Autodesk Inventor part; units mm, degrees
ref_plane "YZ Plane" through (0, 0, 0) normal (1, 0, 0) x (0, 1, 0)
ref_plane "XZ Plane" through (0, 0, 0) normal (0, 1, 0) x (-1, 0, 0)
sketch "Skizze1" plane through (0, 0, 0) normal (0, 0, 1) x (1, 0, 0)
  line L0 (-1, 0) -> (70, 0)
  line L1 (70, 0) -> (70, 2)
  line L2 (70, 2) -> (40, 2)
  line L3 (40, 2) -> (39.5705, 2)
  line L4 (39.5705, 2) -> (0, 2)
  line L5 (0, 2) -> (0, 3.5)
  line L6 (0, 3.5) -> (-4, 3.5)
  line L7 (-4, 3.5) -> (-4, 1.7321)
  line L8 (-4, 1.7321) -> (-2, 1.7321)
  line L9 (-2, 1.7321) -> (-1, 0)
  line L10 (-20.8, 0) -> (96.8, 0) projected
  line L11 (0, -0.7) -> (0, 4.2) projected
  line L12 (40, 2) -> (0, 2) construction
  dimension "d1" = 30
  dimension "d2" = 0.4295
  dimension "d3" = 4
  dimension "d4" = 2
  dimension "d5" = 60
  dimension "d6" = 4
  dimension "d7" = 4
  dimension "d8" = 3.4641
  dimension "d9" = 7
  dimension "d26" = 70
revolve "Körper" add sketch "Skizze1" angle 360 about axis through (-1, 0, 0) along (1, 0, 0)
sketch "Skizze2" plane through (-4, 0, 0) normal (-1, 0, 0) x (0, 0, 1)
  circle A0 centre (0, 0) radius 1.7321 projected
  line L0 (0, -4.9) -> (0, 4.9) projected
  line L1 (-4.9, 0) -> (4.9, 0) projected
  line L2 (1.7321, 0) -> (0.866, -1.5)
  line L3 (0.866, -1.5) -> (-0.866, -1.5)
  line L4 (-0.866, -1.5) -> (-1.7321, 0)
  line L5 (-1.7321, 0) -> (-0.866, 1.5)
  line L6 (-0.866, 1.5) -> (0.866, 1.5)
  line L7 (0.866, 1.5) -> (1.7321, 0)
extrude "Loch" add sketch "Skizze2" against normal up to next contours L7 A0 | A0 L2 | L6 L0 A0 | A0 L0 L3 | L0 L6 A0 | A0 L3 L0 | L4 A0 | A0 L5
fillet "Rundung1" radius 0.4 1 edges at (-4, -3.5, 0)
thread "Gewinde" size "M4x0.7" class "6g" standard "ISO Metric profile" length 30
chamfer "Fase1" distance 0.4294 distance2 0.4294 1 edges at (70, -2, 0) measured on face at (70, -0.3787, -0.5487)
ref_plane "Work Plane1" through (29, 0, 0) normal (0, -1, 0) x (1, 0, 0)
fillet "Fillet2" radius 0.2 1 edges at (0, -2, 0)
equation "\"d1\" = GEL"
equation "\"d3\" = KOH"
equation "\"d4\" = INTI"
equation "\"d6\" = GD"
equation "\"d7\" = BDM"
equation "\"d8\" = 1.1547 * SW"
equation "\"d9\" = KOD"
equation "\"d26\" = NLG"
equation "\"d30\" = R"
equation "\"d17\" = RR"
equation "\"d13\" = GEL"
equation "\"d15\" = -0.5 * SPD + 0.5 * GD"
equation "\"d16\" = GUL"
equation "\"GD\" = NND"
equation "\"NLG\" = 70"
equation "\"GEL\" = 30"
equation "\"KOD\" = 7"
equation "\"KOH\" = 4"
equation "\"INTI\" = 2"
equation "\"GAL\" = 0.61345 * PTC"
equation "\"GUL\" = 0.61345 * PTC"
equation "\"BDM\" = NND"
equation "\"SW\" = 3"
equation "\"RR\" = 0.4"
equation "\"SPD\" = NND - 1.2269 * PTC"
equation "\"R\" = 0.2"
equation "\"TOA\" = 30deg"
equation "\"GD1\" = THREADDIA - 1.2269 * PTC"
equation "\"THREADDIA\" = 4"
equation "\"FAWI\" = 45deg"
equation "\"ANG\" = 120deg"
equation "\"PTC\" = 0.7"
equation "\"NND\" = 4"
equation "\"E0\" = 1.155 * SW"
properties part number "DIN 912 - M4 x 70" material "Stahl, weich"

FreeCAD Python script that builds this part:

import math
import FreeCAD as App
import Part
import Sketcher

V = App.Vector
Q = App.Units.Quantity


def edges_at(feature, points):
    """Names of the edges that pass closest to the given points."""
    edges = feature.Shape.Edges
    near = lambda p: min(range(len(edges)), key=lambda i: edges[i].distToShape(Part.Vertex(*p))[0])
    return sorted({f"Edge{near(p) + 1}" for p in points})

doc = App.newDocument("Part")
body = doc.addObject("PartDesign::Body", "Body")

# Sketch on XY plane
sketch1 = body.newObject("Sketcher::SketchObject", "Sketch")
sketch1.AttachmentSupport = (doc.getObject("XY_Plane"), [""])
sketch1.MapMode = "FlatFace"
sketch1.addGeometry(Part.LineSegment(V(-2, 1.7, 0), V(-1, 0, 0)), False)
sketch1.addGeometry(Part.LineSegment(V(-1, 0, 0), V(70, 0, 0)), False)
sketch1.addGeometry(Part.LineSegment(V(70, 0, 0), V(70, 2, 0)), False)
sketch1.addGeometry(Part.LineSegment(V(70, 2, 0), V(0, 2, 0)), False)
sketch1.addGeometry(Part.LineSegment(V(0, 2, 0), V(0, 3.5, 0)), False)
sketch1.addGeometry(Part.LineSegment(V(0, 3.5, 0), V(-4, 3.5, 0)), False)
sketch1.addGeometry(Part.LineSegment(V(-4, 3.5, 0), V(-4, 1.7, 0)), False)
sketch1.addGeometry(Part.LineSegment(V(-4, 1.7, 0), V(-2, 1.7, 0)), False)
sketch1.addConstraint(Sketcher.Constraint("Coincident", 0, 2, 1, 1))
sketch1.addConstraint(Sketcher.Constraint("Coincident", 1, 2, 2, 1))
sketch1.addConstraint(Sketcher.Constraint("Coincident", 2, 2, 3, 1))
sketch1.addConstraint(Sketcher.Constraint("Coincident", 3, 2, 4, 1))
sketch1.addConstraint(Sketcher.Constraint("Coincident", 4, 2, 5, 1))
sketch1.addConstraint(Sketcher.Constraint("Coincident", 5, 2, 6, 1))
sketch1.addConstraint(Sketcher.Constraint("Coincident", 6, 2, 7, 1))
sketch1.addConstraint(Sketcher.Constraint("Coincident", 7, 2, 0, 1))
sketch1.addConstraint(Sketcher.Constraint("Horizontal", 1))
sketch1.addConstraint(Sketcher.Constraint("Vertical", 2))
sketch1.addConstraint(Sketcher.Constraint("Horizontal", 3))
sketch1.addConstraint(Sketcher.Constraint("Vertical", 4))
sketch1.addConstraint(Sketcher.Constraint("Horizontal", 5))
sketch1.addConstraint(Sketcher.Constraint("Vertical", 6))
sketch1.addConstraint(Sketcher.Constraint("Horizontal", 7))
sketch1.addConstraint(Sketcher.Constraint("PointOnObject", 0, 2, -1))
sketch1.addConstraint(Sketcher.Constraint("PointOnObject", 3, 2, -2))
sketch1.addConstraint(Sketcher.Constraint("Equal", 7, 2))
sketch1.addConstraint(Sketcher.Constraint("DistanceX", 3, 2, 3, 1, Q("70 mm")))
sketch1.addConstraint(Sketcher.Constraint("DistanceX", 5, 2, 5, 1, Q("4 mm")))
sketch1.addConstraint(Sketcher.Constraint("DistanceX", 7, 1, 7, 2, Q("2 mm")))
sketch1.addConstraint(Sketcher.Constraint("Distance", 0, Q("2 mm")))
sketch1.addConstraint(Sketcher.Constraint("DistanceX", 1, 1, 1, 2, Q("71 mm")))
sketch1.addConstraint(Sketcher.Constraint("DistanceY", 4, 1, 4, 2, Q("1.5 mm")))
revolution = body.newObject("PartDesign::Revolution", "Revolution")
revolution.Profile = sketch1
revolution.ReferenceAxis = (sketch1, ["H_Axis"])
revolution.Angle = 360

# Sketch on YZ plane
sketch2 = body.newObject("Sketcher::SketchObject", "Sketch001")
sketch2.AttachmentSupport = (doc.getObject("YZ_Plane"), [""])
sketch2.MapMode = "FlatFace"
sketch2.AttachmentOffset = App.Placement(V(0, 0, -4), App.Rotation())
sketch2.addGeometry(Part.LineSegment(V(1.5, 0.9, 0), V(0, 1.7, 0)), False)
sketch2.addGeometry(Part.ArcOfCircle(Part.Circle(V(0, 0, 0), V(0, 0, 1), 1.7), math.radians(30), math.radians(90)), False)
sketch2.addGeometry(Part.ArcOfCircle(Part.Circle(V(0, 0, 0), V(0, 0, 1), 1.7), math.radians(90), math.radians(150)), False)
sketch2.addGeometry(Part.LineSegment(V(0, 1.7, 0), V(-1.5, 0.9, 0)), False)
sketch2.addGeometry(Part.ArcOfCircle(Part.Circle(V(0, 0, 0), V(0, 0, 1), 1.7), math.radians(-30), math.radians(30)), False)
sketch2.addGeometry(Part.LineSegment(V(1.5, 0.9, 0), V(1.5, -0.9, 0)), False)
sketch2.addGeometry(Part.LineSegment(V(-1.5, 0.9, 0), V(-1.5, -0.9, 0)), False)
sketch2.addGeometry(Part.ArcOfCircle(Part.Circle(V(0, 0, 0), V(0, 0, 1), 1.7), math.radians(150), math.radians(210)), False)
sketch2.addGeometry(Part.LineSegment(V(-1.5, -0.9, 0), V(0, -1.7, 0)), False)
sketch2.addGeometry(Part.ArcOfCircle(Part.Circle(V(0, 0, 0), V(0, 0, 1), 1.7), math.radians(-150), math.radians(-90)), False)
sketch2.addGeometry(Part.ArcOfCircle(Part.Circle(V(0, 0, 0), V(0, 0, 1), 1.7), math.radians(-90), math.radians(-30)), False)
sketch2.addGeometry(Part.LineSegment(V(0, -1.7, 0), V(1.5, -0.9, 0)), False)
sketch2.addConstraint(Sketcher.Constraint("Coincident", 0, 1, 1, 1))
sketch2.addConstraint(Sketcher.Constraint("Coincident", 1, 2, 0, 2))
sketch2.addConstraint(Sketcher.Constraint("Coincident", 2, 1, 3, 1))
sketch2.addConstraint(Sketcher.Constraint("Coincident", 3, 2, 2, 2))
sketch2.addConstraint(Sketcher.Constraint("Coincident", 4, 1, 5, 2))
sketch2.addConstraint(Sketcher.Constraint("Coincident", 5, 1, 4, 2))
sketch2.addConstraint(Sketcher.Constraint("Coincident", 6, 1, 7, 1))
sketch2.addConstraint(Sketcher.Constraint("Coincident", 7, 2, 6, 2))
sketch2.addConstraint(Sketcher.Constraint("Coincident", 8, 1, 9, 1))
sketch2.addConstraint(Sketcher.Constraint("Coincident", 9, 2, 8, 2))
sketch2.addConstraint(Sketcher.Constraint("Coincident", 10, 1, 11, 1))
sketch2.addConstraint(Sketcher.Constraint("Coincident", 11, 2, 10, 2))
sketch2.addConstraint(Sketcher.Constraint("Vertical", 5))
sketch2.addConstraint(Sketcher.Constraint("Vertical", 6))
sketch2.addConstraint(Sketcher.Constraint("Coincident", 1, 3, -1, 1))
sketch2.addConstraint(Sketcher.Constraint("Coincident", 2, 3, -1, 1))
sketch2.addConstraint(Sketcher.Constraint("Coincident", 4, 3, -1, 1))
sketch2.addConstraint(Sketcher.Constraint("Coincident", 7, 3, -1, 1))
sketch2.addConstraint(Sketcher.Constraint("Coincident", 9, 3, -1, 1))
sketch2.addConstraint(Sketcher.Constraint("Coincident", 10, 3, -1, 1))
sketch2.addConstraint(Sketcher.Constraint("Coincident", 2, 1, 1, 2))
sketch2.addConstraint(Sketcher.Constraint("Coincident", 5, 1, 0, 1))
sketch2.addConstraint(Sketcher.Constraint("Coincident", 6, 1, 3, 2))
sketch2.addConstraint(Sketcher.Constraint("Coincident", 8, 1, 7, 2))
sketch2.addConstraint(Sketcher.Constraint("Coincident", 10, 1, 9, 2))
sketch2.addConstraint(Sketcher.Constraint("PointOnObject", 1, 2, -2))
sketch2.addConstraint(Sketcher.Constraint("PointOnObject", 9, 2, -2))
sketch2.addConstraint(Sketcher.Constraint("Parallel", 0, 8))
sketch2.addConstraint(Sketcher.Constraint("Parallel", 3, 11))
sketch2.addConstraint(Sketcher.Constraint("Radius", 1, Q("1.732 mm")))
sketch2.addConstraint(Sketcher.Constraint("DistanceX", -1, 1, 0, 1, Q("1.5 mm")))
pad1 = body.newObject("PartDesign::Pad", "Pad")
pad1.Profile = sketch2
pad1.Type = "UpToFirst"
doc.recompute()

fillet = body.newObject("PartDesign::Fillet", "Fillet")
fillet.Base = (pad1, edges_at(pad1, [(-4, -3.5, 0)]))
fillet.Radius = 0.4
doc.recompute()

chamfer = body.newObject("PartDesign::Chamfer", "Chamfer")
chamfer.Base = (fillet, edges_at(fillet, [(70, -2, 0)]))
chamfer.ChamferType = "Two distances"
chamfer.Size = 0.4294
chamfer.Size2 = 0.4294
doc.recompute()

fillet2 = body.newObject("PartDesign::Fillet", "Fillet001")
fillet2.Base = (chamfer, edges_at(chamfer, [(0, -2, 0)]))
fillet2.Radius = 0.2

doc.recompute()
